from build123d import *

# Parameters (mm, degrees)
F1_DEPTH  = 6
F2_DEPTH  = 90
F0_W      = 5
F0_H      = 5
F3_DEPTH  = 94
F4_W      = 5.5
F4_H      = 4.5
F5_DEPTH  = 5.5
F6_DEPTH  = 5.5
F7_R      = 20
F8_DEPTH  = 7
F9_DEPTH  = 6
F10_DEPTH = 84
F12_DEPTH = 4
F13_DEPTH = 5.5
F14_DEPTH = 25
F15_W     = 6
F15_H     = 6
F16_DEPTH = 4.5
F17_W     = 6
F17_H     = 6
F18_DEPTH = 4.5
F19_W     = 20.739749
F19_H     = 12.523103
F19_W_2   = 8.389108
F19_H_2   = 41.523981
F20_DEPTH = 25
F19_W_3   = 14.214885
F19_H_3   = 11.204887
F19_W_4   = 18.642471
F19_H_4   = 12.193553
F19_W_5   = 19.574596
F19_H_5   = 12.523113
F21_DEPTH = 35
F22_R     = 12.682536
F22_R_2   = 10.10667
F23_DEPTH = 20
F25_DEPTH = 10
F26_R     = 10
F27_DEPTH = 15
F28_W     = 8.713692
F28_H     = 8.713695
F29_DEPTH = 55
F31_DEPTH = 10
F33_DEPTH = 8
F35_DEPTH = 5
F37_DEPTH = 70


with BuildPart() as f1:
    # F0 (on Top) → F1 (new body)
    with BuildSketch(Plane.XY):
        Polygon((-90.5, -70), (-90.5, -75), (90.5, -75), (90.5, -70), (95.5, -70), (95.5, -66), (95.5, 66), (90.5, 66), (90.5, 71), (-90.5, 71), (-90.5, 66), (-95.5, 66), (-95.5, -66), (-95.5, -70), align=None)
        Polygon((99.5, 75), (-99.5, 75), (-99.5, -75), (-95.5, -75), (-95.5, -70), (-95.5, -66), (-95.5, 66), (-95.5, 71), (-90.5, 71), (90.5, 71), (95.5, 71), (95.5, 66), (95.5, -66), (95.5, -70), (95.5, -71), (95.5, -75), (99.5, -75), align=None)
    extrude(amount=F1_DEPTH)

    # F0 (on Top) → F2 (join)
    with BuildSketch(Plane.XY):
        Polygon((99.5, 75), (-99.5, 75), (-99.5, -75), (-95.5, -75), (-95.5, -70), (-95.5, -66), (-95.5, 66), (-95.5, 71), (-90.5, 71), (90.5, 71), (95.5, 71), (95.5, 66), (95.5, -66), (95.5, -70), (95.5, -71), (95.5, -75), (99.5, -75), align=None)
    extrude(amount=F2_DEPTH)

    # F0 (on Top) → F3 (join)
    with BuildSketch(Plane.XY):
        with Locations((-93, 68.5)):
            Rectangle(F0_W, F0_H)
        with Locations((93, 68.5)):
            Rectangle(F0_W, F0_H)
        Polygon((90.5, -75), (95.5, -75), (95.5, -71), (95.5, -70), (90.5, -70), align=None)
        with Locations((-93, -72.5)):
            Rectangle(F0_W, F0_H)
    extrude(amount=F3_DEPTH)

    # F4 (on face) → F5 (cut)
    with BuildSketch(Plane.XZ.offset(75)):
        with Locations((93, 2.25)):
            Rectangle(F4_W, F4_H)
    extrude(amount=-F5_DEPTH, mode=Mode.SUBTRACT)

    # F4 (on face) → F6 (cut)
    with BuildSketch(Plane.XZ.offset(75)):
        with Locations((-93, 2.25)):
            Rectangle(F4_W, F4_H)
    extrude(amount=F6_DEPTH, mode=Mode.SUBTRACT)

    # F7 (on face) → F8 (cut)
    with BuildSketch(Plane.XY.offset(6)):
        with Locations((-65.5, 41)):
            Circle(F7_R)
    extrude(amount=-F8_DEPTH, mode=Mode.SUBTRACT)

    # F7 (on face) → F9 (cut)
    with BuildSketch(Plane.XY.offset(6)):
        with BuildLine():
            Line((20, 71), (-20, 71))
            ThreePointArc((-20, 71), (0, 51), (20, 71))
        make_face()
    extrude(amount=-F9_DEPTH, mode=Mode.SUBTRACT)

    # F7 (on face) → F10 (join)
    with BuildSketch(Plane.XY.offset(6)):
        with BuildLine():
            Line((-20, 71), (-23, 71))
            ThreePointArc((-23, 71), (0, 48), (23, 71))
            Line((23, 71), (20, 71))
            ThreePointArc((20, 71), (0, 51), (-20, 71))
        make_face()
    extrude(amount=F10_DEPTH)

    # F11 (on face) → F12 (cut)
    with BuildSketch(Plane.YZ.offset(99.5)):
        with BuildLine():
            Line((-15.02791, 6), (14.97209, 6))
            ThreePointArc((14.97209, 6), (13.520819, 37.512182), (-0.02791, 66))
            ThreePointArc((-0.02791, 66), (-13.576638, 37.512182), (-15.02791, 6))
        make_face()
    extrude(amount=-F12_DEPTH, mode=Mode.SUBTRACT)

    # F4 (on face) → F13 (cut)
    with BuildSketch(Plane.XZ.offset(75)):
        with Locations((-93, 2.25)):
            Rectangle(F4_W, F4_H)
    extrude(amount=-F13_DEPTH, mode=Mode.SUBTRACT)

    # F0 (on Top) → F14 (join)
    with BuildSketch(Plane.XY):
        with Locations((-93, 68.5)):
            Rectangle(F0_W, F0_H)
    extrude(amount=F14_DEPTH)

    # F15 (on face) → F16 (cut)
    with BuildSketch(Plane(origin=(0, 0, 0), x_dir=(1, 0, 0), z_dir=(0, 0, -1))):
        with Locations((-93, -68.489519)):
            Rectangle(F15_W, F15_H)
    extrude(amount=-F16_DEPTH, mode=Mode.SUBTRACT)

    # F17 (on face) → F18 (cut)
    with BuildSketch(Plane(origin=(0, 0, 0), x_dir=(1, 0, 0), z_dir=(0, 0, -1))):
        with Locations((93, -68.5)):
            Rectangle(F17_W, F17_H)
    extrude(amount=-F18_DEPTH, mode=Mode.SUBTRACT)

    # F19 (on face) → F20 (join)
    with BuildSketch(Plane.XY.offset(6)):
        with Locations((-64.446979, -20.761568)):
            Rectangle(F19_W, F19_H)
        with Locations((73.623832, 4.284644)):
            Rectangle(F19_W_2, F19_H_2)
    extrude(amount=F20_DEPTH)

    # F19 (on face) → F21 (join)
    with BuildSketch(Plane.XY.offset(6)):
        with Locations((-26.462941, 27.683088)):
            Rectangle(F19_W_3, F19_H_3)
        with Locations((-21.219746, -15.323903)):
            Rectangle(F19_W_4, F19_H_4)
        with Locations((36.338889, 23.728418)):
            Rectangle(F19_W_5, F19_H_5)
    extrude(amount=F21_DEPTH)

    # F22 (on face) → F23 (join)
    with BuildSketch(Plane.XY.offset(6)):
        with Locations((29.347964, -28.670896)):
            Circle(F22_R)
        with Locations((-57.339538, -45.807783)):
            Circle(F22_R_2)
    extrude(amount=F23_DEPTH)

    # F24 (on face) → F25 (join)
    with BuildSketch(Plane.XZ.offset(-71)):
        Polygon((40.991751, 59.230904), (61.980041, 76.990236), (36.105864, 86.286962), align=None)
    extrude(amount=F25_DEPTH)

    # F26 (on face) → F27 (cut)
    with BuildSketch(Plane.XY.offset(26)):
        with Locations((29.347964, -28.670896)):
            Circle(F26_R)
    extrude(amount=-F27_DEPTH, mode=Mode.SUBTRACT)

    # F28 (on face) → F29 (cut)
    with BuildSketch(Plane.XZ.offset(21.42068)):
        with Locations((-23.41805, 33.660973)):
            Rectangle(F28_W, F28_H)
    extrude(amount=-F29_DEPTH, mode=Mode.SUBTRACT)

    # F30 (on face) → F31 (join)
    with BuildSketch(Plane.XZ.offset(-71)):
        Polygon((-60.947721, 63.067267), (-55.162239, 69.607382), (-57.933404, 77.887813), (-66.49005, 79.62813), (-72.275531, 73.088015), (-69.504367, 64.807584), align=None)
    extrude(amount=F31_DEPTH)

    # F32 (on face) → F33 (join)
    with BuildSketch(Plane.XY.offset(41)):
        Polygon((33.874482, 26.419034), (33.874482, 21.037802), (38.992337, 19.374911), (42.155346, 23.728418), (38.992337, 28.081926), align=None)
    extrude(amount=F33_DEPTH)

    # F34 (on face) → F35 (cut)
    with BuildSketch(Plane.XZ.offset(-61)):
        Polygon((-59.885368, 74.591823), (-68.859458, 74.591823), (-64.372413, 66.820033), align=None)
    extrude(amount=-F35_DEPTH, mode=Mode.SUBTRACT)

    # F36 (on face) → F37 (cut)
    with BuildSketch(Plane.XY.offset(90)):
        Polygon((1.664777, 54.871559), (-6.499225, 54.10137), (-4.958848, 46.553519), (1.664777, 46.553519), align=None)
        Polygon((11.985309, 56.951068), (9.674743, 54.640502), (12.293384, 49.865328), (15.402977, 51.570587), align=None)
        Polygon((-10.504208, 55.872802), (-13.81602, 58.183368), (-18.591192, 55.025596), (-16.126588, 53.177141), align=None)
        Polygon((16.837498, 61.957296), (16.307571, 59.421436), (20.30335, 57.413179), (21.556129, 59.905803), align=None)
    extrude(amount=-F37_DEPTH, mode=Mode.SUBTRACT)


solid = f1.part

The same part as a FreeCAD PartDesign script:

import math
import FreeCAD as App
import Part
import Sketcher
Q = App.Units.Quantity

doc = App.newDocument("Part")
params = doc.addObject("Spreadsheet::Sheet", "Params")
for row, (alias, value) in enumerate([
    ("sketch1_width", "181 mm"),
    ("sketch1_width2", "5 mm"),
    ("sketch1_width3", "4 mm"),
    ("sketch1_height", "150 mm"),
    ("pad1_length", "6 mm"),
    ("sketch2_width", "199 mm"),
    ("sketch2_width2", "4 mm"),
    ("sketch2_height", "150 mm"),
    ("sketch2_height2", "146 mm"),
    ("pad2_length", "90 mm"),
    ("sketch3_width", "5 mm"),
    ("pad3_length", "94 mm"),
    ("sketch4_width", "5.5 mm"),
    ("sketch4_height", "4.5 mm"),
    ("pocket1_length", "5.5 mm"),
    ("sketch5_width", "5.5 mm"),
    ("sketch5_height", "4.5 mm"),
    ("pocket2_length", "5.5 mm"),
    ("sketch6_diameter", "40 mm"),
    ("pocket3_length", "7 mm"),
    ("sketch7_radius", "20 mm"),
    ("pocket4_length", "6 mm"),
    ("sketch8_radius", "23 mm"),
    ("sketch8_radius2", "20 mm"),
    ("pad4_length", "84 mm"),
    ("sketch9_width", "30 mm"),
    ("pocket5_length", "4 mm"),
    ("sketch10_width", "5.5 mm"),
    ("sketch10_height", "4.5 mm"),
    ("pocket6_length", "5.5 mm"),
    ("sketch11_width", "5 mm"),
    ("pad5_length", "25 mm"),
    ("sketch12_width", "6 mm"),
    ("pocket7_length", "4.5 mm"),
    ("sketch13_width", "6 mm"),
    ("pocket8_length", "4.5 mm"),
    ("pad6_length", "25 mm"),
    ("pad7_length", "35 mm"),
    ("pad8_length", "20 mm"),
    ("pad9_length", "10 mm"),
    ("sketch18_diameter", "20 mm"),
    ("pocket9_length", "15 mm"),
    ("pocket10_length", "55 mm"),
    ("pad10_length", "10 mm"),
    ("pad11_length", "8 mm"),
    ("pocket11_length", "5 mm"),
    ("pocket12_length", "70 mm"),
], start=1):
    params.set(f"A{row}", alias)
    params.set(f"B{row}", "=" + value)
    params.setAlias(f"B{row}", alias)

body = doc.addObject("PartDesign::Body", "Body")

sketch1 = body.newObject("Sketcher::SketchObject", "Sketch")
sketch1.AttachmentSupport = (doc.getObject("XY_Plane"), [""])
sketch1.MapMode = "FlatFace"
sketch1.addGeometry([
    Part.LineSegment(App.Vector(-90.5, -70, 0), App.Vector(-90.5, -75, 0)),
    Part.LineSegment(App.Vector(-90.5, -75, 0), App.Vector(90.5, -75, 0)),
    Part.LineSegment(App.Vector(90.5, -75, 0), App.Vector(90.5, -70, 0)),
    Part.LineSegment(App.Vector(90.5, -70, 0), App.Vector(95.5, -70, 0)),
    Part.LineSegment(App.Vector(95.5, -70, 0), App.Vector(95.5, -75, 0)),
    Part.LineSegment(App.Vector(95.5, -75, 0), App.Vector(99.5, -75, 0)),
    Part.LineSegment(App.Vector(99.5, -75, 0), App.Vector(99.5, 75, 0)),
    Part.LineSegment(App.Vector(99.5, 75, 0), App.Vector(-99.5, 75, 0)),
    Part.LineSegment(App.Vector(-99.5, 75, 0), App.Vector(-99.5, -75, 0)),
    Part.LineSegment(App.Vector(-99.5, -75, 0), App.Vector(-95.5, -75, 0)),
    Part.LineSegment(App.Vector(-95.5, -75, 0), App.Vector(-95.5, -70, 0)),
    Part.LineSegment(App.Vector(-95.5, -70, 0), App.Vector(-90.5, -70, 0)),
    Part.LineSegment(App.Vector(95.5, 66, 0), App.Vector(90.5, 66, 0)),
    Part.LineSegment(App.Vector(90.5, 66, 0), App.Vector(90.5, 71, 0)),
    Part.LineSegment(App.Vector(90.5, 71, 0), App.Vector(95.5, 71, 0)),
    Part.LineSegment(App.Vector(95.5, 71, 0), App.Vector(95.5, 66, 0)),
    Part.LineSegment(App.Vector(-90.5, 71, 0), App.Vector(-90.5, 66, 0)),
    Part.LineSegment(App.Vector(-90.5, 66, 0), App.Vector(-95.5, 66, 0)),
    Part.LineSegment(App.Vector(-95.5, 66, 0), App.Vector(-95.5, 71, 0)),
    Part.LineSegment(App.Vector(-95.5, 71, 0), App.Vector(-90.5, 71, 0)),
], False)
sketch1.addConstraint([
    Sketcher.Constraint("Coincident", 0, 2, 1, 1),
    Sketcher.Constraint("Coincident", 1, 2, 2, 1),
    Sketcher.Constraint("Coincident", 2, 2, 3, 1),
    Sketcher.Constraint("Coincident", 3, 2, 4, 1),
    Sketcher.Constraint("Coincident", 4, 2, 5, 1),
    Sketcher.Constraint("Coincident", 5, 2, 6, 1),
    Sketcher.Constraint("Coincident", 6, 2, 7, 1),
    Sketcher.Constraint("Coincident", 7, 2, 8, 1),
    Sketcher.Constraint("Coincident", 8, 2, 9, 1),
    Sketcher.Constraint("Coincident", 9, 2, 10, 1),
    Sketcher.Constraint("Coincident", 10, 2, 11, 1),
    Sketcher.Constraint("Coincident", 11, 2, 0, 1),
    Sketcher.Constraint("Coincident", 12, 2, 13, 1),
    Sketcher.Constraint("Coincident", 13, 2, 14, 1),
    Sketcher.Constraint("Coincident", 14, 2, 15, 1),
    Sketcher.Constraint("Coincident", 15, 2, 12, 1),
    Sketcher.Constraint("Coincident", 16, 2, 17, 1),
    Sketcher.Constraint("Coincident", 17, 2, 18, 1),
    Sketcher.Constraint("Coincident", 18, 2, 19, 1),
    Sketcher.Constraint("Coincident", 19, 2, 16, 1),
    Sketcher.Constraint("Vertical", 0),
    Sketcher.Constraint("Horizontal", 1),
    Sketcher.Constraint("Vertical", 2),
    Sketcher.Constraint("Horizontal", 3),
    Sketcher.Constraint("Vertical", 4),
    Sketcher.Constraint("Horizontal", 5),
    Sketcher.Constraint("Vertical", 6),
    Sketcher.Constraint("Horizontal", 7),
    Sketcher.Constraint("Vertical", 8),
    Sketcher.Constraint("Horizontal", 9),
    Sketcher.Constraint("Vertical", 10),
    Sketcher.Constraint("Horizontal", 11),
    Sketcher.Constraint("Horizontal", 12),
    Sketcher.Constraint("Vertical", 13),
    Sketcher.Constraint("Horizontal", 14),
    Sketcher.Constraint("Vertical", 15),
    Sketcher.Constraint("Vertical", 16),
    Sketcher.Constraint("Horizontal", 17),
    Sketcher.Constraint("Vertical", 18),
    Sketcher.Constraint("Horizontal", 19),
    Sketcher.Constraint("Symmetric", 5, 2, 7, 2, -1, 1),
    Sketcher.Constraint("Symmetric", 4, 2, 9, 2, -2),
    Sketcher.Constraint("Symmetric", 2, 2, 11, 2, -2),
    Sketcher.Constraint("Symmetric", 12, 2, 16, 2, -2),
    Sketcher.Constraint("Symmetric", 14, 2, 18, 2, -2),
    Sketcher.Constraint("Horizontal", 1, 2, 4, 2),
    Sketcher.Constraint("Vertical", 2, 2, 12, 2),
    Sketcher.Constraint("Vertical", 4, 2, 14, 2),
    Sketcher.Constraint("Equal", 19, 0),
    Sketcher.Constraint("Equal", 10, 13),
    Sketcher.Constraint("DistanceX", 1, 1, 1, 2, Q("181 mm")),
    Sketcher.Constraint("DistanceX", 3, 1, 3, 2, Q("5 mm")),
    Sketcher.Constraint("DistanceX", 5, 1, 5, 2, Q("4 mm")),
    Sketcher.Constraint("DistanceY", 6, 1, 6, 2, Q("150 mm")),
    Sketcher.Constraint("DistanceY", -1, 1, 12, 2, Q("66 mm")),
])
sketch1.setExpression("Constraints[50]", "Params.sketch1_width")
sketch1.setExpression("Constraints[51]", "Params.sketch1_width2")
sketch1.setExpression("Constraints[52]", "Params.sketch1_width3")
sketch1.setExpression("Constraints[53]", "Params.sketch1_height")
pad1 = body.newObject("PartDesign::Pad", "Pad")
pad1.Profile = sketch1
pad1.setExpression("Length", "Params.pad1_length")

sketch2 = body.newObject("Sketcher::SketchObject", "Sketch001")
sketch2.AttachmentSupport = (doc.getObject("XY_Plane"), [""])
sketch2.MapMode = "FlatFace"
sketch2.addGeometry([
    Part.LineSegment(App.Vector(99.5, 75, 0), App.Vector(-99.5, 75, 0)),
    Part.LineSegment(App.Vector(-99.5, 75, 0), App.Vector(-99.5, -75, 0)),
    Part.LineSegment(App.Vector(-99.5, -75, 0), App.Vector(-95.5, -75, 0)),
    Part.LineSegment(App.Vector(-95.5, -75, 0), App.Vector(-95.5, 71, 0)),
    Part.LineSegment(App.Vector(-95.5, 71, 0), App.Vector(95.5, 71, 0)),
    Part.LineSegment(App.Vector(95.5, 71, 0), App.Vector(95.5, -75, 0)),
    Part.LineSegment(App.Vector(95.5, -75, 0), App.Vector(99.5, -75, 0)),
    Part.LineSegment(App.Vector(99.5, -75, 0), App.Vector(99.5, 75, 0)),
], False)
sketch2.addConstraint([
    Sketcher.Constraint("Coincident", 0, 2, 1, 1),
    Sketcher.Constraint("Coincident", 1, 2, 2, 1),
    Sketcher.Constraint("Coincident", 2, 2, 3, 1),
    Sketcher.Constraint("Coincident", 3, 2, 4, 1),
    Sketcher.Constraint("Coincident", 4, 2, 5, 1),
    Sketcher.Constraint("Coincident", 5, 2, 6, 1),
    Sketcher.Constraint("Coincident", 6, 2, 7, 1),
    Sketcher.Constraint("Coincident", 7, 2, 0, 1),
    Sketcher.Constraint("Horizontal", 0),
    Sketcher.Constraint("Vertical", 1),
    Sketcher.Constraint("Horizontal", 2),
    Sketcher.Constraint("Vertical", 3),
    Sketcher.Constraint("Horizontal", 4),
    Sketcher.Constraint("Vertical", 5),
    Sketcher.Constraint("Horizontal", 6),
    Sketcher.Constraint("Vertical", 7),
    Sketcher.Constraint("Symmetric", 0, 2, 6, 2, -1, 1),
    Sketcher.Constraint("Symmetric", 2, 2, 5, 2, -2),
    Sketcher.Constraint("DistanceX", 0, 2, 0, 1, Q("199 mm")),
    Sketcher.Constraint("DistanceX", 2, 1, 2, 2, Q("4 mm")),
    Sketcher.Constraint("DistanceY", 1, 2, 1, 1, Q("150 mm")),
    Sketcher.Constraint("DistanceY", 3, 1, 3, 2, Q("146 mm")),
])
sketch2.setExpression("Constraints[18]", "Params.sketch2_width")
sketch2.setExpression("Constraints[19]", "Params.sketch2_width2")
sketch2.setExpression("Constraints[20]", "Params.sketch2_height")
sketch2.setExpression("Constraints[21]", "Params.sketch2_height2")
pad2 = body.newObject("PartDesign::Pad", "Pad001")
pad2.Profile = sketch2
pad2.setExpression("Length", "Params.pad2_length")

sketch3 = body.newObject("Sketcher::SketchObject", "Sketch002")
sketch3.AttachmentSupport = (doc.getObject("XY_Plane"), [""])
sketch3.MapMode = "FlatFace"
sketch3.addGeometry([
    Part.LineSegment(App.Vector(-96, 71, 0), App.Vector(-96, 66, 0)),
    Part.LineSegment(App.Vector(-96, 66, 0), App.Vector(-90, 66, 0)),
    Part.LineSegment(App.Vector(-90, 66, 0), App.Vector(-90, 71, 0)),
    Part.LineSegment(App.Vector(-90, 71, 0), App.Vector(-96, 71, 0)),
    Part.LineSegment(App.Vector(90, 71, 0), App.Vector(90, 66, 0)),
    Part.LineSegment(App.Vector(90, 66, 0), App.Vector(96, 66, 0)),
    Part.LineSegment(App.Vector(96, 66, 0), App.Vector(96, 71, 0)),
    Part.LineSegment(App.Vector(96, 71, 0), App.Vector(90, 71, 0)),
    Part.LineSegment(App.Vector(90, -75, 0), App.Vector(96, -75, 0)),
    Part.LineSegment(App.Vector(96, -75, 0), App.Vector(96, -70, 0)),
    Part.LineSegment(App.Vector(96, -70, 0), App.Vector(90, -70, 0)),
    Part.LineSegment(App.Vector(90, -70, 0), App.Vector(90, -75, 0)),
    Part.LineSegment(App.Vector(-96, -70, 0), App.Vector(-96, -75, 0)),
    Part.LineSegment(App.Vector(-96, -75, 0), App.Vector(-90, -75, 0)),
    Part.LineSegment(App.Vector(-90, -75, 0), App.Vector(-90, -70, 0)),
    Part.LineSegment(App.Vector(-90, -70, 0), App.Vector(-96, -70, 0)),
], False)
sketch3.addConstraint([
    Sketcher.Constraint("Coincident", 0, 2, 1, 1),
    Sketcher.Constraint("Coincident", 1, 2, 2, 1),
    Sketcher.Constraint("Coincident", 2, 2, 3, 1),
    Sketcher.Constraint("Coincident", 3, 2, 0, 1),
    Sketcher.Constraint("Coincident", 4, 2, 5, 1),
    Sketcher.Constraint("Coincident", 5, 2, 6, 1),
    Sketcher.Constraint("Coincident", 6, 2, 7, 1),
    Sketcher.Constraint("Coincident", 7, 2, 4, 1),
    Sketcher.Constraint("Coincident", 8, 2, 9, 1),
    Sketcher.Constraint("Coincident", 9, 2, 10, 1),
    Sketcher.Constraint("Coincident", 10, 2, 11, 1),
    Sketcher.Constraint("Coincident", 11, 2, 8, 1),
    Sketcher.Constraint("Coincident", 12, 2, 13, 1),
    Sketcher.Constraint("Coincident", 13, 2, 14, 1),
    Sketcher.Constraint("Coincident", 14, 2, 15, 1),
    Sketcher.Constraint("Coincident", 15, 2, 12, 1),
    Sketcher.Constraint("Vertical", 0),
    Sketcher.Constraint("Horizontal", 1),
    Sketcher.Constraint("Vertical", 2),
    Sketcher.Constraint("Horizontal", 3),
    Sketcher.Constraint("Vertical", 4),
    Sketcher.Constraint("Horizontal", 5),
    Sketcher.Constraint("Vertical", 6),
    Sketcher.Constraint("Horizontal", 7),
    Sketcher.Constraint("Horizontal", 8),
    Sketcher.Constraint("Vertical", 9),
    Sketcher.Constraint("Horizontal", 10),
    Sketcher.Constraint("Vertical", 11),
    Sketcher.Constraint("Vertical", 12),
    Sketcher.Constraint("Horizontal", 13),
    Sketcher.Constraint("Vertical", 14),
    Sketcher.Constraint("Horizontal", 15),
    Sketcher.Constraint("Symmetric", 1, 2, 4, 2, -2),
    Sketcher.Constraint("Symmetric", 3, 2, 6, 2, -2),
    Sketcher.Constraint("Symmetric", 8, 2, 12, 2, -2),
    Sketcher.Constraint("Symmetric", 10, 2, 14, 2, -2),
    Sketcher.Constraint("Vertical", 6, 2, 8, 2),
    Sketcher.Constraint("Vertical", 7, 2, 10, 2),
    Sketcher.Constraint("Equal", 15, 0),
    Sketcher.Constraint("Equal", 6, 9),
    Sketcher.Constraint("DistanceX", 1, 1, 1, 2, Q("5 mm")),
    Sketcher.Constraint("DistanceY", -1, 1, 0, 2, Q("66 mm")),
    Sketcher.Constraint("DistanceY", 8, 2, -1, 1, Q("75 mm")),
    Sketcher.Constraint("DistanceX", 1, 2, 4, 2, Q("181 mm")),
])
sketch3.setExpression("Constraints[40]", "Params.sketch3_width")
pad3 = body.newObject("PartDesign::Pad", "Pad002")
pad3.Profile = sketch3
pad3.setExpression("Length", "Params.pad3_length")

sketch4 = body.newObject("Sketcher::SketchObject", "Sketch003")
sketch4.AttachmentSupport = (doc.getObject("XZ_Plane"), [""])
sketch4.MapMode = "FlatFace"
sketch4.AttachmentOffset = App.Placement(App.Vector(0, 0, 75), App.Rotation())
sketch4.addGeometry([
    Part.LineSegment(App.Vector(90.2, 4.5, 0), App.Vector(90.2, 0, 0)),
    Part.LineSegment(App.Vector(90.2, 0, 0), App.Vector(95.8, 0, 0)),
    Part.LineSegment(App.Vector(95.8, 0, 0), App.Vector(95.8, 4.5, 0)),
    Part.LineSegment(App.Vector(95.8, 4.5, 0), App.Vector(90.2, 4.5, 0)),
], False)
sketch4.addConstraint([
    Sketcher.Constraint("Coincident", 0, 2, 1, 1),
    Sketcher.Constraint("Coincident", 1, 2, 2, 1),
    Sketcher.Constraint("Coincident", 2, 2, 3, 1),
    Sketcher.Constraint("Coincident", 3, 2, 0, 1),
    Sketcher.Constraint("Vertical", 0),
    Sketcher.Constraint("Horizontal", 1),
    Sketcher.Constraint("Vertical", 2),
    Sketcher.Constraint("Horizontal", 3),
    Sketcher.Constraint("PointOnObject", 0, 2, -1),
    Sketcher.Constraint("DistanceX", 1, 1, 1, 2, Q("5.5 mm")),
    Sketcher.Constraint("DistanceY", 0, 2, 0, 1, Q("4.5 mm")),
    Sketcher.Constraint("DistanceX", -1, 1, 0, 2, Q("90.25 mm")),
])
sketch4.setExpression("Constraints[9]", "Params.sketch4_width")
sketch4.setExpression("Constraints[10]", "Params.sketch4_height")
pocket1 = body.newObject("PartDesign::Pocket", "Pocket")
pocket1.Profile = sketch4
pocket1.setExpression("Length", "Params.pocket1_length")

sketch5 = body.newObject("Sketcher::SketchObject", "Sketch004")
sketch5.AttachmentSupport = (doc.getObject("XZ_Plane"), [""])
sketch5.MapMode = "FlatFace"
sketch5.AttachmentOffset = App.Placement(App.Vector(0, 0, 75), App.Rotation())
sketch5.addGeometry([
    Part.LineSegment(App.Vector(-95.8, 4.5, 0), App.Vector(-95.8, 0, 0)),
    Part.LineSegment(App.Vector(-95.8, 0, 0), App.Vector(-90.2, 0, 0)),
    Part.LineSegment(App.Vector(-90.2, 0, 0), App.Vector(-90.2, 4.5, 0)),
    Part.LineSegment(App.Vector(-90.2, 4.5, 0), App.Vector(-95.8, 4.5, 0)),
], False)
sketch5.addConstraint([
    Sketcher.Constraint("Coincident", 0, 2, 1, 1),
    Sketcher.Constraint("Coincident", 1, 2, 2, 1),
    Sketcher.Constraint("Coincident", 2, 2, 3, 1),
    Sketcher.Constraint("Coincident", 3, 2, 0, 1),
    Sketcher.Constraint("Vertical", 0),
    Sketcher.Constraint("Horizontal", 1),
    Sketcher.Constraint("Vertical", 2),
    Sketcher.Constraint("Horizontal", 3),
    Sketcher.Constraint("PointOnObject", 0, 2, -1),
    Sketcher.Constraint("DistanceX", 1, 1, 1, 2, Q("5.5 mm")),
    Sketcher.Constraint("DistanceY", 0, 2, 0, 1, Q("4.5 mm")),
    Sketcher.Constraint("DistanceX", 0, 2, -1, 1, Q("95.75 mm")),
])
sketch5.setExpression("Constraints[9]", "Params.sketch5_width")
sketch5.setExpression("Constraints[10]", "Params.sketch5_height")
pocket2 = body.newObject("PartDesign::Pocket", "Pocket001")
pocket2.Profile = sketch5
pocket2.setExpression("Length", "Params.pocket2_length")
pocket2.Reversed = True

sketch6 = body.newObject("Sketcher::SketchObject", "Sketch005")
sketch6.AttachmentSupport = (doc.getObject("XY_Plane"), [""])
sketch6.MapMode = "FlatFace"
sketch6.AttachmentOffset = App.Placement(App.Vector(0, 0, 6), App.Rotation())
sketch6.addGeometry(Part.Circle(App.Vector(-66, 41, 0), App.Vector(0, 0, 1), 20), False)
sketch6.addConstraint([
    Sketcher.Constraint("Diameter", 0, Q("40 mm")),
    Sketcher.Constraint("DistanceY", -1, 1, 0, 3, Q("41 mm")),
    Sketcher.Constraint("DistanceX", 0, 3, -1, 1, Q("65.5 mm")),
])
sketch6.setExpression("Constraints[0]", "Params.sketch6_diameter")
pocket3 = body.newObject("PartDesign::Pocket", "Pocket002")
pocket3.Profile = sketch6
pocket3.setExpression("Length", "Params.pocket3_length")

sketch7 = body.newObject("Sketcher::SketchObject", "Sketch006")
sketch7.AttachmentSupport = (doc.getObject("XY_Plane"), [""])
sketch7.MapMode = "FlatFace"
sketch7.AttachmentOffset = App.Placement(App.Vector(0, 0, 6), App.Rotation())
sketch7.addGeometry([
    Part.LineSegment(App.Vector(20, 71, 0), App.Vector(-20, 71, 0)),
    Part.ArcOfCircle(Part.Circle(App.Vector(0, 71, 0), App.Vector(0, 0, 1), 20), math.radians(180), math.radians(360)),
], False)
sketch7.addConstraint([
    Sketcher.Constraint("Coincident", 0, 1, 1, 2),
    Sketcher.Constraint("Coincident", 1, 1, 0, 2),
    Sketcher.Constraint("Horizontal", 0),
    Sketcher.Constraint("PointOnObject", 1, 3, -2),
    Sketcher.Constraint("Horizontal", 1, 3, 0, 1),
    Sketcher.Constraint("Radius", 1, Q("20 mm")),
    Sketcher.Constraint("DistanceY", -1, 1, 1, 3, Q("71 mm")),
])
sketch7.setExpression("Constraints[5]", "Params.sketch7_radius")
pocket4 = body.newObject("PartDesign::Pocket", "Pocket003")
pocket4.Profile = sketch7
pocket4.setExpression("Length", "Params.pocket4_length")

sketch8 = body.newObject("Sketcher::SketchObject", "Sketch007")
sketch8.AttachmentSupport = (doc.getObject("XY_Plane"), [""])
sketch8.MapMode = "FlatFace"
sketch8.AttachmentOffset = App.Placement(App.Vector(0, 0, 6), App.Rotation())
sketch8.addGeometry([
    Part.LineSegment(App.Vector(-20, 71, 0), App.Vector(-23, 71, 0)),
    Part.ArcOfCircle(Part.Circle(App.Vector(0, 71, 0), App.Vector(0, 0, 1), 23), math.radians(180), math.radians(360)),
    Part.LineSegment(App.Vector(23, 71, 0), App.Vector(20, 71, 0)),
    Part.ArcOfCircle(Part.Circle(App.Vector(0, 71, 0), App.Vector(0, 0, 1), 20), math.radians(180), math.radians(360)),
], False)
sketch8.addConstraint([
    Sketcher.Constraint("Coincident", 0, 2, 1, 1),
    Sketcher.Constraint("Coincident", 1, 2, 2, 1),
    Sketcher.Constraint("Coincident", 2, 2, 3, 2),
    Sketcher.Constraint("Coincident", 3, 1, 0, 1),
    Sketcher.Constraint("Horizontal", 0),
    Sketcher.Constraint("Horizontal", 2),
    Sketcher.Constraint("Coincident", 3, 3, 1, 3),
    Sketcher.Constraint("Symmetric", 0, 2, 1, 2, -2),
    Sketcher.Constraint("Horizontal", 3, 3, 0, 2),
    Sketcher.Constraint("Radius", 1, Q("23 mm")),
    Sketcher.Constraint("Radius", 3, Q("20 mm")),
    Sketcher.Constraint("DistanceY", -1, 1, 1, 3, Q("71 mm")),
])
sketch8.setExpression("Constraints[9]", "Params.sketch8_radius")
sketch8.setExpression("Constraints[10]", "Params.sketch8_radius2")
pad4 = body.newObject("PartDesign::Pad", "Pad003")
pad4.Profile = sketch8
pad4.setExpression("Length", "Params.pad4_length")

sketch9 = body.newObject("Sketcher::SketchObject", "Sketch008")
sketch9.AttachmentSupport = (doc.getObject("YZ_Plane"), [""])
sketch9.MapMode = "FlatFace"
sketch9.AttachmentOffset = App.Placement(App.Vector(0, 0, 99.5), App.Rotation())
sketch9.addGeometry([
    Part.LineSegment(App.Vector(-15, 6, 0), App.Vector(15, 6, 0)),
    Part.ArcOfCircle(Part.Circle(App.Vector(-64, 18, 0), App.Vector(0, 0, 1), 80), math.radians(-9), math.radians(37)),
    Part.ArcOfCircle(Part.Circle(App.Vector(64, 18, 0), App.Vector(0, 0, 1), 80), math.radians(143), math.radians(189)),
], False)
sketch9.addConstraint([
    Sketcher.Constraint("Coincident", 0, 2, 1, 1),
    Sketcher.Constraint("Coincident", 1, 2, 2, 1),
    Sketcher.Constraint("Coincident", 2, 2, 0, 1),
    Sketcher.Constraint("Horizontal", 0),
    Sketcher.Constraint("DistanceX", 0, 1, 0, 2, Q("30 mm")),
    Sketcher.Constraint("DistanceY", -1, 1, 0, 2, Q("6 mm")),
    Sketcher.Constraint("DistanceY", -1, 1, 1, 2, Q("66 mm")),
    Sketcher.Constraint("DistanceX", 1, 2, 0, 2, Q("15 mm")),
    Sketcher.Constraint("Radius", 1, Q("79.802874 mm")),
    Sketcher.Constraint("Radius", 2, Q("79.802885 mm")),
    Sketcher.Constraint("DistanceX", 1, 3, -1, 1, Q("63.899341 mm")),
])
sketch9.setExpression("Constraints[4]", "Params.sketch9_width")
pocket5 = body.newObject("PartDesign::Pocket", "Pocket004")
pocket5.Profile = sketch9
pocket5.setExpression("Length", "Params.pocket5_length")

sketch10 = body.newObject("Sketcher::SketchObject", "Sketch009")
sketch10.AttachmentSupport = (doc.getObject("XZ_Plane"), [""])
sketch10.MapMode = "FlatFace"
sketch10.AttachmentOffset = App.Placement(App.Vector(0, 0, 75), App.Rotation())
sketch10.addGeometry([
    Part.LineSegment(App.Vector(-95.8, 4.5, 0), App.Vector(-95.8, 0, 0)),
    Part.LineSegment(App.Vector(-95.8, 0, 0), App.Vector(-90.2, 0, 0)),
    Part.LineSegment(App.Vector(-90.2, 0, 0), App.Vector(-90.2, 4.5, 0)),
    Part.LineSegment(App.Vector(-90.2, 4.5, 0), App.Vector(-95.8, 4.5, 0)),
], False)
sketch10.addConstraint([
    Sketcher.Constraint("Coincident", 0, 2, 1, 1),
    Sketcher.Constraint("Coincident", 1, 2, 2, 1),
    Sketcher.Constraint("Coincident", 2, 2, 3, 1),
    Sketcher.Constraint("Coincident", 3, 2, 0, 1),
    Sketcher.Constraint("Vertical", 0),
    Sketcher.Constraint("Horizontal", 1),
    Sketcher.Constraint("Vertical", 2),
    Sketcher.Constraint("Horizontal", 3),
    Sketcher.Constraint("PointOnObject", 0, 2, -1),
    Sketcher.Constraint("DistanceX", 1, 1, 1, 2, Q("5.5 mm")),
    Sketcher.Constraint("DistanceY", 0, 2, 0, 1, Q("4.5 mm")),
    Sketcher.Constraint("DistanceX", 0, 2, -1, 1, Q("95.75 mm")),
])
sketch10.setExpression("Constraints[9]", "Params.sketch10_width")
sketch10.setExpression("Constraints[10]", "Params.sketch10_height")
pocket6 = body.newObject("PartDesign::Pocket", "Pocket005")
pocket6.Profile = sketch10
pocket6.setExpression("Length", "Params.pocket6_length")

sketch11 = body.newObject("Sketcher::SketchObject", "Sketch010")
sketch11.AttachmentSupport = (doc.getObject("XY_Plane"), [""])
sketch11.MapMode = "FlatFace"
sketch11.addGeometry([
    Part.LineSegment(App.Vector(-96, 71, 0), App.Vector(-96, 66, 0)),
    Part.LineSegment(App.Vector(-96, 66, 0), App.Vector(-90, 66, 0)),
    Part.LineSegment(App.Vector(-90, 66, 0), App.Vector(-90, 71, 0)),
    Part.LineSegment(App.Vector(-90, 71, 0), App.Vector(-96, 71, 0)),
], False)
sketch11.addConstraint([
    Sketcher.Constraint("Coincident", 0, 2, 1, 1),
    Sketcher.Constraint("Coincident", 1, 2, 2, 1),
    Sketcher.Constraint("Coincident", 2, 2, 3, 1),
    Sketcher.Constraint("Coincident", 3, 2, 0, 1),
    Sketcher.Constraint("Vertical", 0),
    Sketcher.Constraint("Horizontal", 1),
    Sketcher.Constraint("Vertical", 2),
    Sketcher.Constraint("Horizontal", 3),
    Sketcher.Constraint("Equal", 3, 0),
    Sketcher.Constraint("DistanceX", 1, 1, 1, 2, Q("5 mm")),
    Sketcher.Constraint("DistanceY", -1, 1, 0, 2, Q("66 mm")),
    Sketcher.Constraint("DistanceX", 0, 2, -1, 1, Q("95.5 mm")),
])
sketch11.setExpression("Constraints[9]", "Params.sketch11_width")
pad5 = body.newObject("PartDesign::Pad", "Pad004")
pad5.Profile = sketch11
pad5.setExpression("Length", "Params.pad5_length")

sketch12 = body.newObject("Sketcher::SketchObject", "Sketch011")
sketch12.AttachmentSupport = (doc.getObject("XY_Plane"), [""])
sketch12.MapMode = "FlatFace"
sketch12.addGeometry([
    Part.LineSegment(App.Vector(-96, 65, 0), App.Vector(-96, 71, 0)),
    Part.LineSegment(App.Vector(-96, 71, 0), App.Vector(-90, 71, 0)),
    Part.LineSegment(App.Vector(-90, 71, 0), App.Vector(-90, 65, 0)),
    Part.LineSegment(App.Vector(-90, 65, 0), App.Vector(-96, 65, 0)),
], False)
sketch12.addConstraint([
    Sketcher.Constraint("Coincident", 0, 2, 1, 1),
    Sketcher.Constraint("Coincident", 1, 2, 2, 1),
    Sketcher.Constraint("Coincident", 2, 2, 3, 1),
    Sketcher.Constraint("Coincident", 3, 2, 0, 1),
    Sketcher.Constraint("Vertical", 0),
    Sketcher.Constraint("Horizontal", 1),
    Sketcher.Constraint("Vertical", 2),
    Sketcher.Constraint("Horizontal", 3),
    Sketcher.Constraint("Equal", 3, 0),
    Sketcher.Constraint("DistanceX", 1, 1, 1, 2, Q("6 mm")),
    Sketcher.Constraint("DistanceX", 0, 2, -1, 1, Q("96 mm")),
    Sketcher.Constraint("DistanceY", -1, 1, 0, 2, Q("71.489519 mm")),
])
sketch12.setExpression("Constraints[9]", "Params.sketch12_width")
pocket7 = body.newObject("PartDesign::Pocket", "Pocket006")
pocket7.Profile = sketch12
pocket7.setExpression("Length", "Params.pocket7_length")
pocket7.Reversed = True

sketch13 = body.newObject("Sketcher::SketchObject", "Sketch012")
sketch13.AttachmentSupport = (doc.getObject("XY_Plane"), [""])
sketch13.MapMode = "FlatFace"
sketch13.addGeometry([
    Part.LineSegment(App.Vector(90, 66, 0), App.Vector(90, 72, 0)),
    Part.LineSegment(App.Vector(90, 72, 0), App.Vector(96, 72, 0)),
    Part.LineSegment(App.Vector(96, 72, 0), App.Vector(96, 66, 0)),
    Part.LineSegment(App.Vector(96, 66, 0), App.Vector(90, 66, 0)),
], False)
sketch13.addConstraint([
    Sketcher.Constraint("Coincident", 0, 2, 1, 1),
    Sketcher.Constraint("Coincident", 1, 2, 2, 1),
    Sketcher.Constraint("Coincident", 2, 2, 3, 1),
    Sketcher.Constraint("Coincident", 3, 2, 0, 1),
    Sketcher.Constraint("Vertical", 0),
    Sketcher.Constraint("Horizontal", 1),
    Sketcher.Constraint("Vertical", 2),
    Sketcher.Constraint("Horizontal", 3),
    Sketcher.Constraint("Equal", 3, 0),
    Sketcher.Constraint("DistanceX", 1, 1, 1, 2, Q("6 mm")),
    Sketcher.Constraint("DistanceX", -1, 1, 0, 2, Q("90 mm")),
    Sketcher.Constraint("DistanceY", -1, 1, 0, 2, Q("71.5 mm")),
])
sketch13.setExpression("Constraints[9]", "Params.sketch13_width")
pocket8 = body.newObject("PartDesign::Pocket", "Pocket007")
pocket8.Profile = sketch13
pocket8.setExpression("Length", "Params.pocket8_length")
pocket8.Reversed = True

sketch14 = body.newObject("Sketcher::SketchObject", "Sketch013")
sketch14.AttachmentSupport = (doc.getObject("XY_Plane"), [""])
sketch14.MapMode = "FlatFace"
sketch14.AttachmentOffset = App.Placement(App.Vector(0, 0, 6), App.Rotation())
sketch14.addGeometry([
    Part.LineSegment(App.Vector(-75, -15, 0), App.Vector(-75, -27, 0)),
    Part.LineSegment(App.Vector(-75, -27, 0), App.Vector(-54, -27, 0)),
    Part.LineSegment(App.Vector(-54, -27, 0), App.Vector(-54, -15, 0)),
    Part.LineSegment(App.Vector(-54, -15, 0), App.Vector(-75, -15, 0)),
    Part.LineSegment(App.Vector(69, 25, 0), App.Vector(69, -16, 0)),
    Part.LineSegment(App.Vector(69, -16, 0), App.Vector(78, -16, 0)),
    Part.LineSegment(App.Vector(78, -16, 0), App.Vector(78, 25, 0)),
    Part.LineSegment(App.Vector(78, 25, 0), App.Vector(69, 25, 0)),
], False)
sketch14.addConstraint([
    Sketcher.Constraint("Coincident", 0, 2, 1, 1),
    Sketcher.Constraint("Coincident", 1, 2, 2, 1),
    Sketcher.Constraint("Coincident", 2, 2, 3, 1),
    Sketcher.Constraint("Coincident", 3, 2, 0, 1),
    Sketcher.Constraint("Coincident", 4, 2, 5, 1),
    Sketcher.Constraint("Coincident", 5, 2, 6, 1),
    Sketcher.Constraint("Coincident", 6, 2, 7, 1),
    Sketcher.Constraint("Coincident", 7, 2, 4, 1),
    Sketcher.Constraint("Vertical", 0),
    Sketcher.Constraint("Horizontal", 1),
    Sketcher.Constraint("Vertical", 2),
    Sketcher.Constraint("Horizontal", 3),
    Sketcher.Constraint("Vertical", 4),
    Sketcher.Constraint("Horizontal", 5),
    Sketcher.Constraint("Vertical", 6),
    Sketcher.Constraint("Horizontal", 7),
    Sketcher.Constraint("DistanceX", 1, 1, 1, 2, Q("20.739749 mm")),
    Sketcher.Constraint("DistanceX", 5, 1, 5, 2, Q("8.389108 mm")),
    Sketcher.Constraint("DistanceY", 4, 2, 4, 1, Q("41.523981 mm")),
    Sketcher.Constraint("DistanceY", 0, 2, 0, 1, Q("12.523103 mm")),
    Sketcher.Constraint("DistanceY", 0, 2, -1, 1, Q("27.023119 mm")),
    Sketcher.Constraint("DistanceY", 4, 2, 2, 2, Q("1.97733 mm")),
    Sketcher.Constraint("DistanceX", 3, 2, 4, 2, Q("144.246131 mm")),
    Sketcher.Constraint("DistanceX", 0, 2, -1, 1, Q("74.816853 mm")),
])
pad6 = body.newObject("PartDesign::Pad", "Pad005")
pad6.Profile = sketch14
pad6.setExpression("Length", "Params.pad6_length")

sketch15 = body.newObject("Sketcher::SketchObject", "Sketch014")
sketch15.AttachmentSupport = (doc.getObject("XY_Plane"), [""])
sketch15.MapMode = "FlatFace"
sketch15.AttachmentOffset = App.Placement(App.Vector(0, 0, 6), App.Rotation())
sketch15.addGeometry([
    Part.LineSegment(App.Vector(-34, 33, 0), App.Vector(-34, 22, 0)),
    Part.LineSegment(App.Vector(-34, 22, 0), App.Vector(-19, 22, 0)),
    Part.LineSegment(App.Vector(-19, 22, 0), App.Vector(-19, 33, 0)),
    Part.LineSegment(App.Vector(-19, 33, 0), App.Vector(-34, 33, 0)),
    Part.LineSegment(App.Vector(-31, -9, 0), App.Vector(-31, -21, 0)),
    Part.LineSegment(App.Vector(-31, -21, 0), App.Vector(-12, -21, 0)),
    Part.LineSegment(App.Vector(-12, -21, 0), App.Vector(-12, -9, 0)),
    Part.LineSegment(App.Vector(-12, -9, 0), App.Vector(-31, -9, 0)),
    Part.LineSegment(App.Vector(27, 30, 0), App.Vector(27, 17, 0)),
    Part.LineSegment(App.Vector(27, 17, 0), App.Vector(46, 17, 0)),
    Part.LineSegment(App.Vector(46, 17, 0), App.Vector(46, 30, 0)),
    Part.LineSegment(App.Vector(46, 30, 0), App.Vector(27, 30, 0)),
], False)
sketch15.addConstraint([
    Sketcher.Constraint("Coincident", 0, 2, 1, 1),
    Sketcher.Constraint("Coincident", 1, 2, 2, 1),
    Sketcher.Constraint("Coincident", 2, 2, 3, 1),
    Sketcher.Constraint("Coincident", 3, 2, 0, 1),
    Sketcher.Constraint("Coincident", 4, 2, 5, 1),
    Sketcher.Constraint("Coincident", 5, 2, 6, 1),
    Sketcher.Constraint("Coincident", 6, 2, 7, 1),
    Sketcher.Constraint("Coincident", 7, 2, 4, 1),
    Sketcher.Constraint("Coincident", 8, 2, 9, 1),
    Sketcher.Constraint("Coincident", 9, 2, 10, 1),
    Sketcher.Constraint("Coincident", 10, 2, 11, 1),
    Sketcher.Constraint("Coincident", 11, 2, 8, 1),
    Sketcher.Constraint("Vertical", 0),
    Sketcher.Constraint("Horizontal", 1),
    Sketcher.Constraint("Vertical", 2),
    Sketcher.Constraint("Horizontal", 3),
    Sketcher.Constraint("Vertical", 4),
    Sketcher.Constraint("Horizontal", 5),
    Sketcher.Constraint("Vertical", 6),
    Sketcher.Constraint("Horizontal", 7),
    Sketcher.Constraint("Vertical", 8),
    Sketcher.Constraint("Horizontal", 9),
    Sketcher.Constraint("Vertical", 10),
    Sketcher.Constraint("Horizontal", 11),
    Sketcher.Constraint("DistanceX", 5, 1, 5, 2, Q("18.642471 mm")),
    Sketcher.Constraint("DistanceX", 1, 2, -1, 1, Q("19.355498 mm")),
    Sketcher.Constraint("DistanceX", 0, 2, 4, 2, Q("3.029402 mm")),
    Sketcher.Constraint("DistanceX", 6, 2, 8, 2, Q("38.450102 mm")),
    Sketcher.Constraint("DistanceY", 6, 2, 10, 2, Q("39.217101 mm")),
    Sketcher.Constraint("DistanceX", 1, 1, 1, 2, Q("14.214885 mm")),
    Sketcher.Constraint("DistanceX", 9, 1, 9, 2, Q("19.574596 mm")),
    Sketcher.Constraint("DistanceY", 0, 2, 0, 1, Q("11.204887 mm")),
    Sketcher.Constraint("DistanceY", 4, 2, 4, 1, Q("12.193553 mm")),
    Sketcher.Constraint("DistanceY", 8, 2, 8, 1, Q("12.523113 mm")),
    Sketcher.Constraint("DistanceY", -1, 1, 2, 2, Q("33.285531 mm")),
    Sketcher.Constraint("DistanceY", 4, 2, -1, 1, Q("21.420679 mm")),
])
pad7 = body.newObject("PartDesign::Pad", "Pad006")
pad7.Profile = sketch15
pad7.setExpression("Length", "Params.pad7_length")

sketch16 = body.newObject("Sketcher::SketchObject", "Sketch015")
sketch16.AttachmentSupport = (doc.getObject("XY_Plane"), [""])
sketch16.MapMode = "FlatFace"
sketch16.AttachmentOffset = App.Placement(App.Vector(0, 0, 6), App.Rotation())
sketch16.addGeometry([
    Part.Circle(App.Vector(29, -29, 0), App.Vector(0, 0, 1), 13),
    Part.Circle(App.Vector(-57, -46, 0), App.Vector(0, 0, 1), 10),
], False)
sketch16.addConstraint([
    Sketcher.Constraint("Diameter", 1, Q("20.21334 mm")),
    Sketcher.Constraint("Diameter", 0, Q("25.365072 mm")),
    Sketcher.Constraint("DistanceX", 1, 3, 0, 3, Q("86.687502 mm")),
    Sketcher.Constraint("DistanceX", -1, 1, 0, 3, Q("29.347964 mm")),
    Sketcher.Constraint("DistanceY", 0, 3, -1, 1, Q("28.670896 mm")),
    Sketcher.Constraint("DistanceY", 1, 3, -1, 1, Q("45.807783 mm")),
])
pad8 = body.newObject("PartDesign::Pad", "Pad007")
pad8.Profile = sketch16
pad8.setExpression("Length", "Params.pad8_length")

sketch17 = body.newObject("Sketcher::SketchObject", "Sketch016")
sketch17.AttachmentSupport = (doc.getObject("XZ_Plane"), [""])
sketch17.MapMode = "FlatFace"
sketch17.AttachmentOffset = App.Placement(App.Vector(0, 0, -71), App.Rotation())
sketch17.addGeometry([
    Part.LineSegment(App.Vector(41, 59, 0), App.Vector(62, 77, 0)),
    Part.LineSegment(App.Vector(62, 77, 0), App.Vector(36, 86, 0)),
    Part.LineSegment(App.Vector(36, 86, 0), App.Vector(41, 59, 0)),
], False)
sketch17.addConstraint([
    Sketcher.Constraint("Coincident", 0, 2, 1, 1),
    Sketcher.Constraint("Coincident", 1, 2, 2, 1),
    Sketcher.Constraint("Coincident", 2, 2, 0, 1),
    Sketcher.Constraint("Equal", 0, 1),
    Sketcher.Constraint("Equal", 1, 2),
    Sketcher.Constraint("DistanceX", -1, 1, 0, 2, Q("61.980041 mm")),
    Sketcher.Constraint("DistanceX", -1, 1, 2, 2, Q("40.991751 mm")),
    Sketcher.Constraint("DistanceY", 2, 2, 1, 2, Q("27.056058 mm")),
    Sketcher.Constraint("DistanceY", -1, 1, 0, 2, Q("76.990236 mm")),
])
pad9 = body.newObject("PartDesign::Pad", "Pad008")
pad9.Profile = sketch17
pad9.setExpression("Length", "Params.pad9_length")

sketch18 = body.newObject("Sketcher::SketchObject", "Sketch017")
sketch18.AttachmentSupport = (doc.getObject("XY_Plane"), [""])
sketch18.MapMode = "FlatFace"
sketch18.AttachmentOffset = App.Placement(App.Vector(0, 0, 26), App.Rotation())
sketch18.addGeometry(Part.Circle(App.Vector(29, -29, 0), App.Vector(0, 0, 1), 10), False)
sketch18.addConstraint([
    Sketcher.Constraint("Diameter", 0, Q("20 mm")),
    Sketcher.Constraint("DistanceX", -1, 1, 0, 3, Q("29.347964 mm")),
    Sketcher.Constraint("DistanceY", 0, 3, -1, 1, Q("28.670896 mm")),
])
sketch18.setExpression("Constraints[0]", "Params.sketch18_diameter")
pocket9 = body.newObject("PartDesign::Pocket", "Pocket008")
pocket9.Profile = sketch18
pocket9.setExpression("Length", "Params.pocket9_length")

sketch19 = body.newObject("Sketcher::SketchObject", "Sketch018")
sketch19.AttachmentSupport = (doc.getObject("XZ_Plane"), [""])
sketch19.MapMode = "FlatFace"
sketch19.AttachmentOffset = App.Placement(App.Vector(0, 0, 21.42068), App.Rotation())
sketch19.addGeometry([
    Part.LineSegment(App.Vector(-28, 38, 0), App.Vector(-28, 29, 0)),
    Part.LineSegment(App.Vector(-28, 29, 0), App.Vector(-19, 29, 0)),
    Part.LineSegment(App.Vector(-19, 29, 0), App.Vector(-19, 38, 0)),
    Part.LineSegment(App.Vector(-19, 38, 0), App.Vector(-28, 38, 0)),
], False)
sketch19.addConstraint([
    Sketcher.Constraint("Coincident", 0, 2, 1, 1),
    Sketcher.Constraint("Coincident", 1, 2, 2, 1),
    Sketcher.Constraint("Coincident", 2, 2, 3, 1),
    Sketcher.Constraint("Coincident", 3, 2, 0, 1),
    Sketcher.Constraint("Vertical", 0),
    Sketcher.Constraint("Horizontal", 1),
    Sketcher.Constraint("Vertical", 2),
    Sketcher.Constraint("Horizontal", 3),
    Sketcher.Constraint("DistanceX", 1, 1, 1, 2, Q("8.713692 mm")),
    Sketcher.Constraint("DistanceY", 0, 2, 0, 1, Q("8.713695 mm")),
    Sketcher.Constraint("DistanceY", -1, 1, 2, 2, Q("38.01782 mm")),
    Sketcher.Constraint("DistanceX", 0, 2, -1, 1, Q("27.774896 mm")),
])
pocket10 = body.newObject("PartDesign::Pocket", "Pocket009")
pocket10.Profile = sketch19
pocket10.setExpression("Length", "Params.pocket10_length")

sketch20 = body.newObject("Sketcher::SketchObject", "Sketch019")
sketch20.AttachmentSupport = (doc.getObject("XZ_Plane"), [""])
sketch20.MapMode = "FlatFace"
sketch20.AttachmentOffset = App.Placement(App.Vector(0, 0, -71), App.Rotation())
sketch20.addGeometry([
    Part.LineSegment(App.Vector(-61, 63, 0), App.Vector(-55, 70, 0)),
    Part.LineSegment(App.Vector(-55, 70, 0), App.Vector(-58, 78, 0)),
    Part.LineSegment(App.Vector(-58, 78, 0), App.Vector(-66, 80, 0)),
    Part.LineSegment(App.Vector(-66, 80, 0), App.Vector(-72, 73, 0)),
    Part.LineSegment(App.Vector(-72, 73, 0), App.Vector(-70, 65, 0)),
    Part.LineSegment(App.Vector(-70, 65, 0), App.Vector(-61, 63, 0)),
], False)
sketch20.addConstraint([
    Sketcher.Constraint("Coincident", 0, 2, 1, 1),
    Sketcher.Constraint("Coincident", 1, 2, 2, 1),
    Sketcher.Constraint("Coincident", 2, 2, 3, 1),
    Sketcher.Constraint("Coincident", 3, 2, 4, 1),
    Sketcher.Constraint("Coincident", 4, 2, 5, 1),
    Sketcher.Constraint("Coincident", 5, 2, 0, 1),
    Sketcher.Constraint("Parallel", 0, 3),
    Sketcher.Constraint("Parallel", 1, 4),
    Sketcher.Constraint("Parallel", 2, 5),
    Sketcher.Constraint("Equal", 0, 1),
    Sketcher.Constraint("Equal", 1, 2),
    Sketcher.Constraint("Equal", 2, 3),
    Sketcher.Constraint("Distance", 4, Q("8.731832 mm")),
    Sketcher.Constraint("DistanceX", 0, 2, -1, 1, Q("55.162239 mm")),
    Sketcher.Constraint("DistanceY", -1, 1, 0, 2, Q("69.607382 mm")),
    Sketcher.Constraint("DistanceX", 2, 2, -1, 1, Q("66.49005 mm")),
    Sketcher.Constraint("DistanceY", -1, 1, 2, 2, Q("79.62813 mm")),
    Sketcher.Constraint("DistanceX", 3, 2, -1, 1, Q("72.275531 mm")),
])
pad10 = body.newObject("PartDesign::Pad", "Pad009")
pad10.Profile = sketch20
pad10.setExpression("Length", "Params.pad10_length")

sketch21 = body.newObject("Sketcher::SketchObject", "Sketch020")
sketch21.AttachmentSupport = (doc.getObject("XY_Plane"), [""])
sketch21.MapMode = "FlatFace"
sketch21.AttachmentOffset = App.Placement(App.Vector(0, 0, 41), App.Rotation())
sketch21.addGeometry([
    Part.LineSegment(App.Vector(34, 26, 0), App.Vector(34, 21, 0)),
    Part.LineSegment(App.Vector(34, 21, 0), App.Vector(39, 19, 0)),
    Part.LineSegment(App.Vector(39, 19, 0), App.Vector(42, 24, 0)),
    Part.LineSegment(App.Vector(42, 24, 0), App.Vector(39, 28, 0)),
    Part.LineSegment(App.Vector(39, 28, 0), App.Vector(34, 26, 0)),
], False)
sketch21.addConstraint([
    Sketcher.Constraint("Coincident", 0, 2, 1, 1),
    Sketcher.Constraint("Coincident", 1, 2, 2, 1),
    Sketcher.Constraint("Coincident", 2, 2, 3, 1),
    Sketcher.Constraint("Coincident", 3, 2, 4, 1),
    Sketcher.Constraint("Coincident", 4, 2, 0, 1),
    Sketcher.Constraint("Vertical", 0),
    Sketcher.Constraint("Vertical", 1, 2, 3, 2),
    Sketcher.Constraint("Equal", 1, 2),
    Sketcher.Constraint("Equal", 2, 3),
    Sketcher.Constraint("Equal", 3, 4),
    Sketcher.Constraint("Angle", 1, Q("-17.999991 deg")),
    Sketcher.Constraint("Angle", 2, Q("53.999991 deg")),
    Sketcher.Constraint("DistanceY", -1, 1, 0, 2, Q("21.037802 mm")),
    Sketcher.Constraint("Distance", 1, Q("5.381231 mm")),
    Sketcher.Constraint("DistanceX", -1, 1, 0, 2, Q("33.874482 mm")),
])
pad11 = body.newObject("PartDesign::Pad", "Pad010")
pad11.Profile = sketch21
pad11.setExpression("Length", "Params.pad11_length")

sketch22 = body.newObject("Sketcher::SketchObject", "Sketch021")
sketch22.AttachmentSupport = (doc.getObject("XZ_Plane"), [""])
sketch22.MapMode = "FlatFace"
sketch22.AttachmentOffset = App.Placement(App.Vector(0, 0, -61), App.Rotation())
sketch22.addGeometry([
    Part.LineSegment(App.Vector(-60, 75, 0), App.Vector(-69, 75, 0)),
    Part.LineSegment(App.Vector(-69, 75, 0), App.Vector(-64, 67, 0)),
    Part.LineSegment(App.Vector(-64, 67, 0), App.Vector(-60, 75, 0)),
], False)
sketch22.addConstraint([
    Sketcher.Constraint("Coincident", 0, 2, 1, 1),
    Sketcher.Constraint("Coincident", 1, 2, 2, 1),
    Sketcher.Constraint("Coincident", 2, 2, 0, 1),
    Sketcher.Constraint("Horizontal", 0),
    Sketcher.Constraint("Equal", 1, 2),
    Sketcher.Constraint("Angle", 1, Q("-60 deg")),
    Sketcher.Constraint("DistanceX", 0, 2, 0, 1, Q("8.97409 mm")),
    Sketcher.Constraint("DistanceX", 0, 2, -1, 1, Q("68.859458 mm")),
    Sketcher.Constraint("DistanceY", -1, 1, 0, 2, Q("74.591823 mm")),
])
pocket11 = body.newObject("PartDesign::Pocket", "Pocket010")
pocket11.Profile = sketch22
pocket11.setExpression("Length", "Params.pocket11_length")

sketch23 = body.newObject("Sketcher::SketchObject", "Sketch022")
sketch23.AttachmentSupport = (doc.getObject("XY_Plane"), [""])
sketch23.MapMode = "FlatFace"
sketch23.AttachmentOffset = App.Placement(App.Vector(0, 0, 90), App.Rotation())
sketch23.addGeometry([
    Part.LineSegment(App.Vector(1.7, 54.9, 0), App.Vector(-6.5, 54.1, 0)),
    Part.LineSegment(App.Vector(-6.5, 54.1, 0), App.Vector(-5, 46.6, 0)),
    Part.LineSegment(App.Vector(-5, 46.6, 0), App.Vector(1.7, 46.6, 0)),
    Part.LineSegment(App.Vector(1.7, 46.6, 0), App.Vector(1.7, 54.9, 0)),
    Part.LineSegment(App.Vector(12, 57, 0), App.Vector(9.7, 54.6, 0)),
    Part.LineSegment(App.Vector(9.7, 54.6, 0), App.Vector(12.3, 49.9, 0)),
    Part.LineSegment(App.Vector(12.3, 49.9, 0), App.Vector(15.4, 51.6, 0)),
    Part.LineSegment(App.Vector(15.4, 51.6, 0), App.Vector(12, 57, 0)),
    Part.LineSegment(App.Vector(-10.5, 55.9, 0), App.Vector(-13.8, 58.2, 0)),
    Part.LineSegment(App.Vector(-13.8, 58.2, 0), App.Vector(-18.6, 55, 0)),
    Part.LineSegment(App.Vector(-18.6, 55, 0), App.Vector(-16.1, 53.2, 0)),
    Part.LineSegment(App.Vector(-16.1, 53.2, 0), App.Vector(-10.5, 55.9, 0)),
    Part.LineSegment(App.Vector(16.8, 62, 0), App.Vector(16.3, 59.4, 0)),
    Part.LineSegment(App.Vector(16.3, 59.4, 0), App.Vector(20.3, 57.4, 0)),
    Part.LineSegment(App.Vector(20.3, 57.4, 0), App.Vector(21.6, 59.9, 0)),
    Part.LineSegment(App.Vector(21.6, 59.9, 0), App.Vector(16.8, 62, 0)),
], False)
sketch23.addConstraint([
    Sketcher.Constraint("Coincident", 0, 2, 1, 1),
    Sketcher.Constraint("Coincident", 1, 2, 2, 1),
    Sketcher.Constraint("Coincident", 2, 2, 3, 1),
    Sketcher.Constraint("Coincident", 3, 2, 0, 1),
    Sketcher.Constraint("Coincident", 4, 2, 5, 1),
    Sketcher.Constraint("Coincident", 5, 2, 6, 1),
    Sketcher.Constraint("Coincident", 6, 2, 7, 1),
    Sketcher.Constraint("Coincident", 7, 2, 4, 1),
    Sketcher.Constraint("Coincident", 8, 2, 9, 1),
    Sketcher.Constraint("Coincident", 9, 2, 10, 1),
    Sketcher.Constraint("Coincident", 10, 2, 11, 1),
    Sketcher.Constraint("Coincident", 11, 2, 8, 1),
    Sketcher.Constraint("Coincident", 12, 2, 13, 1),
    Sketcher.Constraint("Coincident", 13, 2, 14, 1),
    Sketcher.Constraint("Coincident", 14, 2, 15, 1),
    Sketcher.Constraint("Coincident", 15, 2, 12, 1),
    Sketcher.Constraint("Horizontal", 2),
    Sketcher.Constraint("Vertical", 3),
    Sketcher.Constraint("Perpendicular", 5, 6),
    Sketcher.Constraint("Perpendicular", 13, 14),
    Sketcher.Constraint("Angle", 4, Q("-135 deg")),
    Sketcher.Constraint("Distance", 15, Q("5.145299 mm")),
    Sketcher.Constraint("DistanceY", 3, 1, 3, 2, Q("8.31804 mm")),
    Sketcher.Constraint("DistanceY", -1, 1, 4, 2, Q("54.640502 mm")),
    Sketcher.Constraint("DistanceX", -1, 1, 15, 2, Q("16.837498 mm")),
    Sketcher.Constraint("DistanceX", 3, 2, 6, 2, Q("13.7382 mm")),
    Sketcher.Constraint("DistanceY", 4, 2, 14, 2, Q("5.265301 mm")),
    Sketcher.Constraint("Distance", 0, Q("8.200251 mm")),
    Sketcher.Constraint("Distance", 1, Q("7.703429 mm")),
    Sketcher.Constraint("Distance", 5, Q("5.44606 mm")),
    Sketcher.Constraint("Distance", 7, Q("6.374169 mm")),
    Sketcher.Constraint("Distance", 8, Q("4.03817 mm")),
    Sketcher.Constraint("Distance", 9, Q("5.72484 mm")),
    Sketcher.Constraint("Distance", 12, Q("2.590639 mm")),
    Sketcher.Constraint("DistanceX", 2, 1, 2, 2, Q("6.623625 mm")),
    Sketcher.Constraint("DistanceY", -1, 1, 0, 2, Q("54.10137 mm")),
    Sketcher.Constraint("DistanceX", -1, 1, 7, 2, Q("11.985309 mm")),
    Sketcher.Constraint("DistanceX", 8, 2, -1, 1, Q("13.81602 mm")),
    Sketcher.Constraint("DistanceY", -1, 1, 8, 2, Q("58.183368 mm")),
    Sketcher.Constraint("DistanceX", 9, 2, -1, 1, Q("18.591192 mm")),
    Sketcher.Constraint("DistanceX", 10, 2, -1, 1, Q("16.126588 mm")),
    Sketcher.Constraint("DistanceY", -1, 1, 10, 2, Q("53.177141 mm")),
    Sketcher.Constraint("DistanceX", -1, 1, 12, 2, Q("16.307571 mm")),
    Sketcher.Constraint("DistanceX", -1, 1, 13, 2, Q("20.30335 mm")),
    Sketcher.Constraint("DistanceY", -1, 1, 13, 2, Q("57.413179 mm")),
    Sketcher.Constraint("DistanceX", 1, 2, 4, 2, Q("14.633591 mm")),
    Sketcher.Constraint("DistanceX", 4, 2, 5, 2, Q("2.618641 mm")),
    Sketcher.Constraint("DistanceX", 8, 2, 11, 2, Q("3.311812 mm")),
])
pocket12 = body.newObject("PartDesign::Pocket", "Pocket011")
pocket12.Profile = sketch23
pocket12.setExpression("Length", "Params.pocket12_length")

doc.recompute()
